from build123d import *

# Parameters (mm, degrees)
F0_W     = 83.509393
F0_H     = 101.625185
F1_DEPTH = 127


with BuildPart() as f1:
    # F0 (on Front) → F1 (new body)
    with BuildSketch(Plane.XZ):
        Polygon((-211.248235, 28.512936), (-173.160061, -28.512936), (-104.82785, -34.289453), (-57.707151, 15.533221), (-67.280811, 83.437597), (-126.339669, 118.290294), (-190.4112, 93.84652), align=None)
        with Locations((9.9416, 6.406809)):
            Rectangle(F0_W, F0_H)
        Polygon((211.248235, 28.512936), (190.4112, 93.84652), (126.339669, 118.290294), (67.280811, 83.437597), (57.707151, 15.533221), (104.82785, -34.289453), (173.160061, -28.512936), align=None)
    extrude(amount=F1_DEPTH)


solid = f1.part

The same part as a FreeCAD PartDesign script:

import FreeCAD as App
import Part
import Sketcher

V = App.Vector
Q = App.Units.Quantity


def add_polygon(sketch, points):
    """Adds a closed chain of lines whose ends are joined by coincident constraints."""
    first, n = sketch.GeometryCount, len(points)
    for a, b in zip(points, points[1:] + points[:1]):
        sketch.addGeometry(Part.LineSegment(App.Vector(*a, 0), App.Vector(*b, 0)), False)
    for i in range(n):
        sketch.addConstraint(Sketcher.Constraint("Coincident", first + i, 2, first + (i + 1) % n, 1))

doc = App.newDocument("Part")
body = doc.addObject("PartDesign::Body", "Body")
body.AllowCompound = True

# Sketch on XZ plane
sketch1 = doc.addObject("Sketcher::SketchObject", "Sketch")
body.addObject(sketch1)
sketch1.AttachmentSupport = (doc.XZ_Plane, [""])
sketch1.MapMode = "FlatFace"
add_polygon(sketch1, [(-211, 29), (-173, -29), (-105, -34), (-58, 16), (-67, 83), (-126, 118), (-190, 94)])  # lines 0-6
add_polygon(sketch1, [(-32, 57), (-32, -44), (52, -44), (52, 57)])  # lines 7-10
add_polygon(sketch1, [(211, 29), (190, 94), (126, 118), (67, 83), (58, 16), (105, -34), (173, -29)])  # lines 11-17
sketch1.addConstraint([
    Sketcher.Constraint("Vertical", 7),
    Sketcher.Constraint("Horizontal", 8),
    Sketcher.Constraint("Vertical", 9),
    Sketcher.Constraint("Horizontal", 10),
    Sketcher.Constraint("Symmetric", 5, 2, 11, 2, -2),
    Sketcher.Constraint("Symmetric", 4, 2, 12, 2, -2),
    Sketcher.Constraint("Symmetric", 3, 2, 13, 2, -2),
    Sketcher.Constraint("Symmetric", 2, 2, 14, 2, -2),
    Sketcher.Constraint("Symmetric", 1, 2, 15, 2, -2),
    Sketcher.Constraint("Symmetric", 0, 2, 16, 2, -2),
    Sketcher.Constraint("Symmetric", 6, 2, 17, 2, -2),
    Sketcher.Constraint("Equal", 0, 1),
    Sketcher.Constraint("Equal", 1, 2),
    Sketcher.Constraint("Equal", 2, 3),
    Sketcher.Constraint("Equal", 3, 4),
    Sketcher.Constraint("Equal", 4, 5),
    Sketcher.Constraint("Equal", 5, 6),
    Sketcher.Constraint("DistanceY", 3, 2, 5, 2, Q("0.4098001 in")),
    Sketcher.Constraint("DistanceX", 5, 2, -1, 1, Q("190.4112 mm")),
    Sketcher.Constraint("DistanceY", -1, 1, 9, 2, Q("57.219401 mm")),
    Sketcher.Constraint("DistanceX", 1, 2, 2, 2, Q("47.120699 mm")),
    Sketcher.Constraint("DistanceY", 2, 2, 5, 2, Q("78.313299 mm")),
    Sketcher.Constraint("DistanceX", 8, 1, 8, 2, Q("83.509393 mm")),
    Sketcher.Constraint("DistanceY", 7, 2, 7, 1, Q("101.625185 mm")),
    Sketcher.Constraint("DistanceX", 0, 2, -1, 1, Q("173.160061 mm")),
    Sketcher.Constraint("DistanceX", 1, 2, -1, 1, Q("104.82785 mm")),
    Sketcher.Constraint("DistanceY", -1, 1, 2, 2, Q("15.533221 mm")),
    Sketcher.Constraint("DistanceX", 3, 2, -1, 1, Q("67.280811 mm")),
    Sketcher.Constraint("DistanceX", 7, 2, -1, 1, Q("31.813097 mm")),
])
pad1 = doc.addObject("PartDesign::Pad", "Pad")
body.addObject(pad1)
pad1.Profile = sketch1
pad1.Length = Q("5 in")

doc.recompute()
